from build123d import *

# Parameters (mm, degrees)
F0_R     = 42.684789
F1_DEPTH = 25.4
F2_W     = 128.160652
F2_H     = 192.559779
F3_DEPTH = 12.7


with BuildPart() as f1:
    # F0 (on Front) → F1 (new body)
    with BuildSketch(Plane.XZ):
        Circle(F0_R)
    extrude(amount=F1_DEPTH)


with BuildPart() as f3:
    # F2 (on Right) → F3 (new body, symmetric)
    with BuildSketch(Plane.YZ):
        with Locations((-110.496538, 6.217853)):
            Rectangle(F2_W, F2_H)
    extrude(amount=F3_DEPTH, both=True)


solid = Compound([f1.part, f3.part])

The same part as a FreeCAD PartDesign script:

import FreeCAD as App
import Part
import Sketcher

V = App.Vector
Q = App.Units.Quantity

doc = App.newDocument("Part")
params = doc.addObject("Spreadsheet::Sheet", "Params")
for row, (alias, value) in enumerate([
    ("pad1_length", "1 in"),
    ("pad2_length", "1 in"),
], start=1):
    params.set(f"A{row}", alias)
    params.set(f"B{row}", "=" + value)
    params.setAlias(f"B{row}", alias)

body = doc.addObject("PartDesign::Body", "Body")

# Sketch on XZ plane
sketch1 = body.newObject("Sketcher::SketchObject", "Sketch")
sketch1.AttachmentSupport = (doc.getObject("XZ_Plane"), [""])
sketch1.MapMode = "FlatFace"
sketch1.addGeometry(Part.Circle(V(0, 0, 0), V(0, 0, 1), 42.684789), False)
sketch1.addConstraint([
    Sketcher.Constraint("Coincident", 0, 3, -1, 1),
    Sketcher.Constraint("Diameter", 0, Q("85.369578 mm")),
])
pad1 = body.newObject("PartDesign::Pad", "Pad")
pad1.Profile = sketch1
pad1.setExpression("Length", "Params.pad1_length")
body2 = doc.addObject("PartDesign::Body", "Body001")

# Sketch on YZ plane
sketch2 = body2.newObject("Sketcher::SketchObject", "Sketch001")
sketch2.AttachmentSupport = (doc.getObject("YZ_Plane001"), [""])
sketch2.MapMode = "FlatFace"
sketch2.addGeometry([
    Part.LineSegment(V(-174.576864, 102.497743, 0), V(-174.576864, -90.062037, 0)),
    Part.LineSegment(V(-174.576864, -90.062037, 0), V(-46.416212, -90.062037, 0)),
    Part.LineSegment(V(-46.416212, -90.062037, 0), V(-46.416212, 102.497743, 0)),
    Part.LineSegment(V(-46.416212, 102.497743, 0), V(-174.576864, 102.497743, 0)),
], False)
sketch2.addConstraint([
    Sketcher.Constraint("Coincident", 0, 2, 1, 1),
    Sketcher.Constraint("Coincident", 1, 2, 2, 1),
    Sketcher.Constraint("Coincident", 2, 2, 3, 1),
    Sketcher.Constraint("Coincident", 3, 2, 0, 1),
    Sketcher.Constraint("Vertical", 0),
    Sketcher.Constraint("Horizontal", 1),
    Sketcher.Constraint("Vertical", 2),
    Sketcher.Constraint("Horizontal", 3),
    Sketcher.Constraint("DistanceX", 1, 1, 1, 2, Q("128.160652 mm")),
    Sketcher.Constraint("DistanceY", 0, 2, 0, 1, Q("192.559779 mm")),
    Sketcher.Constraint("DistanceX", 0, 2, -1, 1, Q("174.576864 mm")),
    Sketcher.Constraint("DistanceY", 0, 2, -1, 1, Q("90.062037 mm")),
])
pad2 = body2.newObject("PartDesign::Pad", "Pad001")
pad2.Profile = sketch2
pad2.setExpression("Length", "Params.pad2_length")
pad2.Midplane = True

doc.recompute()
